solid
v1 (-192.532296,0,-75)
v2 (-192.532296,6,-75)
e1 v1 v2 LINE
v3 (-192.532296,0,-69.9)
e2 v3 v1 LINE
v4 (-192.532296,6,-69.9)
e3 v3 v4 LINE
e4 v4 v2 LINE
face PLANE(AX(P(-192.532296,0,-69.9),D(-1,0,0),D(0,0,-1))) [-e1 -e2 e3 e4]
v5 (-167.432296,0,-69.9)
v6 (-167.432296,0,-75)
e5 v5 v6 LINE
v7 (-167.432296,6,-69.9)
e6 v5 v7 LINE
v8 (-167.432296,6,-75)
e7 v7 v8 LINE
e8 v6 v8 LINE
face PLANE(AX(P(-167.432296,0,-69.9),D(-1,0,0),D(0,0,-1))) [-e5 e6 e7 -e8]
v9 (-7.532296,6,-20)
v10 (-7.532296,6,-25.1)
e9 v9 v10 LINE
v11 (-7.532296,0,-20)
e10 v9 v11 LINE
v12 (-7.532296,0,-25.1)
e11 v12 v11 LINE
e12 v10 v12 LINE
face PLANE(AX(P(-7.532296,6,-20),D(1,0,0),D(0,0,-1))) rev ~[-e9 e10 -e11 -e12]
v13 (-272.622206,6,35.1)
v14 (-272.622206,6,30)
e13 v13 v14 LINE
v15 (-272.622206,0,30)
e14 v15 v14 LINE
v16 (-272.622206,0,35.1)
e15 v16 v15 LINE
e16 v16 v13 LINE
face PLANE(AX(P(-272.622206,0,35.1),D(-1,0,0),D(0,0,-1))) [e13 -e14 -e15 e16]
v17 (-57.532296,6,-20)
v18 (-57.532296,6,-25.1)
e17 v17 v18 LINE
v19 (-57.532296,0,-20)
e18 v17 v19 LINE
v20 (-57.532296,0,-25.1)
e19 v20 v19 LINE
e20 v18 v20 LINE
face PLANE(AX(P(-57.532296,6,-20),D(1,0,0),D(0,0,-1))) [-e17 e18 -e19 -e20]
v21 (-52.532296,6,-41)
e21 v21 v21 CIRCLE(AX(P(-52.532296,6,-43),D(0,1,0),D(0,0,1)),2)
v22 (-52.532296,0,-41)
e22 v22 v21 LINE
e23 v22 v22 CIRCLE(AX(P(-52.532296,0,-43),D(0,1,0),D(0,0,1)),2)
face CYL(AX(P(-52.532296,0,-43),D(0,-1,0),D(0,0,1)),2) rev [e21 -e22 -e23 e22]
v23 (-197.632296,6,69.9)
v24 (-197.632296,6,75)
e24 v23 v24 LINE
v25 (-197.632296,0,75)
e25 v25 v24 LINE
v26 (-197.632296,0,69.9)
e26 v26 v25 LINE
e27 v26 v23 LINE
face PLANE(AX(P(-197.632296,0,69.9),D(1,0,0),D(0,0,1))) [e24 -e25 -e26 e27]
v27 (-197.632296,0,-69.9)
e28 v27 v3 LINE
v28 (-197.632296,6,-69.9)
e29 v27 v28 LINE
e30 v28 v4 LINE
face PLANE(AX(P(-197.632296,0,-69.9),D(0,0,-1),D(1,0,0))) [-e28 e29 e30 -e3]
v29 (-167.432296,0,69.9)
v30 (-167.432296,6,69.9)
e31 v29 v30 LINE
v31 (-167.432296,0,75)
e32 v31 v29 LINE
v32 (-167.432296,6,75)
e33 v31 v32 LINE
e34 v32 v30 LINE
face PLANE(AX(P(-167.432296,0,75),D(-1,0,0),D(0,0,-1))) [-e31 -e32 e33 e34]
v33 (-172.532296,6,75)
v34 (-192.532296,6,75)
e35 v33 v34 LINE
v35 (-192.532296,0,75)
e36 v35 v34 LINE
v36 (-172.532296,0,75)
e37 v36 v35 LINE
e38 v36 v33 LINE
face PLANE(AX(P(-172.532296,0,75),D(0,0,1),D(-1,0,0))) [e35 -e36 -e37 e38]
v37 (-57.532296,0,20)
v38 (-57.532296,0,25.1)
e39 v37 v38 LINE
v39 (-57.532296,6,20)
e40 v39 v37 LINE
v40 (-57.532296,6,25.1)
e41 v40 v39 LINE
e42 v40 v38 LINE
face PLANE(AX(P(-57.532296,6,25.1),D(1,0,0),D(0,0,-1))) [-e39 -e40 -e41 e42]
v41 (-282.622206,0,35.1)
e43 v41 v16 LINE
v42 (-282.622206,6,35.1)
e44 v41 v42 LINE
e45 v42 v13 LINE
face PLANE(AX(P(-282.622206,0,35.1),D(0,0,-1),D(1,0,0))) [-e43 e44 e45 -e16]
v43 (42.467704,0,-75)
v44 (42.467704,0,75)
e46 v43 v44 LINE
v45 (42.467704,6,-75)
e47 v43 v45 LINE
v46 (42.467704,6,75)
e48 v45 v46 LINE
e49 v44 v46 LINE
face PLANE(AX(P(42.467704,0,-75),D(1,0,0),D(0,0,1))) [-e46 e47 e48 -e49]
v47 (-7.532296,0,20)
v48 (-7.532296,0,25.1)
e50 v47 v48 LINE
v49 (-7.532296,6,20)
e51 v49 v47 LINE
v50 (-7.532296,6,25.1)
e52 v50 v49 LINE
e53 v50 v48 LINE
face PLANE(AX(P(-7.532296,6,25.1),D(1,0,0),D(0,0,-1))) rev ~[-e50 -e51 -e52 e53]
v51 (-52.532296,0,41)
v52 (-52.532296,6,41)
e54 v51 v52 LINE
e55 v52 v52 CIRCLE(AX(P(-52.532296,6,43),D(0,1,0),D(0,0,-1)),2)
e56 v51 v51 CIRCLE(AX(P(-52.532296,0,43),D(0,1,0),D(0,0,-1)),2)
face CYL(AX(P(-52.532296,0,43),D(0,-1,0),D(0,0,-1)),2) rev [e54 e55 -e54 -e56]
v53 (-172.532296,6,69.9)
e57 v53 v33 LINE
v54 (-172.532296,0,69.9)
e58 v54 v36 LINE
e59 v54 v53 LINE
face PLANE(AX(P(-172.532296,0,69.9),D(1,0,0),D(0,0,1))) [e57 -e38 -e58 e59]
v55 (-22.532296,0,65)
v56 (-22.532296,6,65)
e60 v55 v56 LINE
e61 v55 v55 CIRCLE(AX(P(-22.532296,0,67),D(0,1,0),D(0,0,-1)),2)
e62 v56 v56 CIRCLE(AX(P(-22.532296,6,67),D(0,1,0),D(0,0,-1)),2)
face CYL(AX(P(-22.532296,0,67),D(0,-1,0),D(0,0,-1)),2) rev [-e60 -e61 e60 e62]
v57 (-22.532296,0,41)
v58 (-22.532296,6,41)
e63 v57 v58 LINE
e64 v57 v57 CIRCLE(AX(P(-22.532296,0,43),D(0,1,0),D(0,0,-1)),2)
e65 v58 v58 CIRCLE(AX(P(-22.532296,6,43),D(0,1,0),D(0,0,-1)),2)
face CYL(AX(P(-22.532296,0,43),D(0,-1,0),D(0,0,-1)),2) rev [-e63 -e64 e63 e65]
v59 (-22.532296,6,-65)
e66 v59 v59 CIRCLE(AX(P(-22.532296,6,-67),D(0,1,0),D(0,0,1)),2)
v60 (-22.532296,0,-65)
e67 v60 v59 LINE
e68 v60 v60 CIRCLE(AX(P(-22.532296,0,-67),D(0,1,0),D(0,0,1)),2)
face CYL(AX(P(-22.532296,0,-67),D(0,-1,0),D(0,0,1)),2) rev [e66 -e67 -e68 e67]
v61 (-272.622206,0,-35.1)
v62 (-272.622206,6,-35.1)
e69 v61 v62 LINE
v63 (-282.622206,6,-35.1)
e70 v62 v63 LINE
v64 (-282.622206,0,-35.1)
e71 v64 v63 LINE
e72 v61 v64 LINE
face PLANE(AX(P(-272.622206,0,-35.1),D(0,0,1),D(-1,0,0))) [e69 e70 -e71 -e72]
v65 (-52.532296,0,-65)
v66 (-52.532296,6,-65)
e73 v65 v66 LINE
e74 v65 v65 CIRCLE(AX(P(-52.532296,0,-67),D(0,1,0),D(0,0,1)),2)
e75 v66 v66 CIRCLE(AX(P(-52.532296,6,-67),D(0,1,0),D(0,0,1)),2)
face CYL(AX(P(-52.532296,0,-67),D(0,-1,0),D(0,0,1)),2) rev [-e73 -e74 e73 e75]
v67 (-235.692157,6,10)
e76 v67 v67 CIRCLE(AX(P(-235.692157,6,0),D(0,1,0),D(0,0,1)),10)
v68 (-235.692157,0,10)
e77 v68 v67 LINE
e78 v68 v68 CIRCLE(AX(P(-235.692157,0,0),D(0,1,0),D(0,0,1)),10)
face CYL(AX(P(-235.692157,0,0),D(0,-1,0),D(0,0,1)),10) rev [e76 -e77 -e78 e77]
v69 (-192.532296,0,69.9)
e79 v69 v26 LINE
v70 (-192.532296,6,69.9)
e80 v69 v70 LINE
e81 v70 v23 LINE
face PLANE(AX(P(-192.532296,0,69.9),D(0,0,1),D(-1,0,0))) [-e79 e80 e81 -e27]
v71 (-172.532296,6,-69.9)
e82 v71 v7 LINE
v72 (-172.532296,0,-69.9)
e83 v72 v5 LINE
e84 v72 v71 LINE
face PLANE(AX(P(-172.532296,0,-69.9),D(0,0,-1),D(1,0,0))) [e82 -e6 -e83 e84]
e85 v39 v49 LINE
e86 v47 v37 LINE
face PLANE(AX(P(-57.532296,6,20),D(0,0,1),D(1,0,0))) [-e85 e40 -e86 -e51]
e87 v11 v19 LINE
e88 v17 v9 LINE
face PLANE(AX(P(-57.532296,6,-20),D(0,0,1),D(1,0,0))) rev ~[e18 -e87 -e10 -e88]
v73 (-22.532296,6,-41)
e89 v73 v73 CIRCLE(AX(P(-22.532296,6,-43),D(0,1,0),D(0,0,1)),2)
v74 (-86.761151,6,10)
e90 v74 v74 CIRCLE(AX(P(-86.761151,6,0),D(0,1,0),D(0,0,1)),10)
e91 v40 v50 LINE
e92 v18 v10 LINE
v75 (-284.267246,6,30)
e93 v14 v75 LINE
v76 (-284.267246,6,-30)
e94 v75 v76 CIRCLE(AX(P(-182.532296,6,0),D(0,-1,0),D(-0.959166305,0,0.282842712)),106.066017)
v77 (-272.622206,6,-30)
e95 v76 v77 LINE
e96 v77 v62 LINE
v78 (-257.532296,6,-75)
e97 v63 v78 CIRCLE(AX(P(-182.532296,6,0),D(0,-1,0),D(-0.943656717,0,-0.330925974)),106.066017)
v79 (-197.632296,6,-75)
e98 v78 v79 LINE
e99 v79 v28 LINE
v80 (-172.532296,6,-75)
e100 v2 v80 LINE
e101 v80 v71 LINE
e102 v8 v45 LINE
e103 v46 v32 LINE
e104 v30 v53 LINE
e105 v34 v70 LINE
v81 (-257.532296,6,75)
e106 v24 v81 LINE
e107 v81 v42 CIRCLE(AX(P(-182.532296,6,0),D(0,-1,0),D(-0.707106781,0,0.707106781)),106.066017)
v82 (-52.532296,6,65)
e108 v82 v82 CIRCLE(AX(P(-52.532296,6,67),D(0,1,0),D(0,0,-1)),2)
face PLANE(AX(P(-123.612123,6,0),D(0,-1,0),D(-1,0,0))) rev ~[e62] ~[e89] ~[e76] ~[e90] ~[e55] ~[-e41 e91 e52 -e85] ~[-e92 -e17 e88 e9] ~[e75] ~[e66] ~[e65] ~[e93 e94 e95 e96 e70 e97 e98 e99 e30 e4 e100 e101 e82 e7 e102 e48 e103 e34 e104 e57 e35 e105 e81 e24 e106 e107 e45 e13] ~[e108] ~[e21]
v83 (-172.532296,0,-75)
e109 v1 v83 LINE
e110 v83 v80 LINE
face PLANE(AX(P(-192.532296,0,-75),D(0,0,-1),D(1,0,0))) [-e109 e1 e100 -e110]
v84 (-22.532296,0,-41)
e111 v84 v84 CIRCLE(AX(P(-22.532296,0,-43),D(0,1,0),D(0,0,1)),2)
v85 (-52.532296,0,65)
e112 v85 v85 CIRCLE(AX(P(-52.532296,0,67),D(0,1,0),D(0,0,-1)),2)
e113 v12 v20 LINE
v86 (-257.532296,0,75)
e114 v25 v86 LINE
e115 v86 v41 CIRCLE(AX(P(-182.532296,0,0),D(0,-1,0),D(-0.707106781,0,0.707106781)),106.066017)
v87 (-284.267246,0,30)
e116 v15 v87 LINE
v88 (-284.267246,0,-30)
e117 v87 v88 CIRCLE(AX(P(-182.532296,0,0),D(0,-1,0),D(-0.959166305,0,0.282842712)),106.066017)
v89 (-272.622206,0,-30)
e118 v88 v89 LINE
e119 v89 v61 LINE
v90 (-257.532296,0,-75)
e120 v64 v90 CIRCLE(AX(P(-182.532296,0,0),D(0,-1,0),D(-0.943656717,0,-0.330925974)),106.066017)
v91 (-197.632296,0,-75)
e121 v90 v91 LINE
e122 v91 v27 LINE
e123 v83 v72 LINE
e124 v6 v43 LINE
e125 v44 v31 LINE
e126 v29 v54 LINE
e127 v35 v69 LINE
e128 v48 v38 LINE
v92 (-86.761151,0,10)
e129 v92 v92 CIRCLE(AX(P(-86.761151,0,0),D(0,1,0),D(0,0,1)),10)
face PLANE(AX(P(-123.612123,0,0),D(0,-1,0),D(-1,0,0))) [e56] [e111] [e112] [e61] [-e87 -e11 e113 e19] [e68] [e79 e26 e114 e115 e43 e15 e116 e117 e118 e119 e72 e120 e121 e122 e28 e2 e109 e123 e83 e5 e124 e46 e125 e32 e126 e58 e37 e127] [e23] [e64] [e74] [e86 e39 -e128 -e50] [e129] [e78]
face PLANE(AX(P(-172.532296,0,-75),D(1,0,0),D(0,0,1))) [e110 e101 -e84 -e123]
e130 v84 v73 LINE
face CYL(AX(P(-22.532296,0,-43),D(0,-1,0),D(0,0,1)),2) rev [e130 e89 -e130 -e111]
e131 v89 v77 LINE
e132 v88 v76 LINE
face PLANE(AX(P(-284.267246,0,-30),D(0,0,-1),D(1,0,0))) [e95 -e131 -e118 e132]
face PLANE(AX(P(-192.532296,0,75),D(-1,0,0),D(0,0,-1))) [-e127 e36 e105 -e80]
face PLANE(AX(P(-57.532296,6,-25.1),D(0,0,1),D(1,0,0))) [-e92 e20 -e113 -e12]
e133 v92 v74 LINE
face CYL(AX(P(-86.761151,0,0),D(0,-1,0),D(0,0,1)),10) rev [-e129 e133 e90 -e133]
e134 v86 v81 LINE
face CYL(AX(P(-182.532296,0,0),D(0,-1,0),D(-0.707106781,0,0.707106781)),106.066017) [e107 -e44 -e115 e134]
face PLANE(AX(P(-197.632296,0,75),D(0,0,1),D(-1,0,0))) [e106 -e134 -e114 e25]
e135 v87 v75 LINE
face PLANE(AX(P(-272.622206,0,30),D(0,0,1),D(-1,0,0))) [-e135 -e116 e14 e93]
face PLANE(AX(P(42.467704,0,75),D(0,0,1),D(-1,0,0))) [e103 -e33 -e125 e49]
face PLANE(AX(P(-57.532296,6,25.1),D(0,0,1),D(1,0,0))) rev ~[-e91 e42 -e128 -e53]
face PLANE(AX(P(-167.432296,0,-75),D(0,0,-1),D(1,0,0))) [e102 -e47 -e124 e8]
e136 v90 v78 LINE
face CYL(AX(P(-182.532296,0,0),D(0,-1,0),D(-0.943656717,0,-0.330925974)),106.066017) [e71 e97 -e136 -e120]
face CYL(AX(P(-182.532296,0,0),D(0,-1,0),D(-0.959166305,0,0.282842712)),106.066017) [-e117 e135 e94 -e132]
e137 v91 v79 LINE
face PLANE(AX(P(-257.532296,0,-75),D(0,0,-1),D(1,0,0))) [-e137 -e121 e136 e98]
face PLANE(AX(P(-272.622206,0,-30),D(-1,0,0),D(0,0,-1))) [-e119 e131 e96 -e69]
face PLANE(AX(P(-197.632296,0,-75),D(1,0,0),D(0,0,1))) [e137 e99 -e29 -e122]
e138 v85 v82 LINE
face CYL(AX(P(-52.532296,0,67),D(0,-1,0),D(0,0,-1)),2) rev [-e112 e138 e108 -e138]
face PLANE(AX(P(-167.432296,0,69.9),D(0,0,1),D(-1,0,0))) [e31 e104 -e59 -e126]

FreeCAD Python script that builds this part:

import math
import FreeCAD as App
import Part
import Sketcher


def add_polygon(sketch, points):
    """Adds a closed chain of lines whose ends are joined by coincident constraints."""
    first, n = sketch.GeometryCount, len(points)
    for a, b in zip(points, points[1:] + points[:1]):
        sketch.addGeometry(Part.LineSegment(App.Vector(*a, 0), App.Vector(*b, 0)), False)
    for i in range(n):
        sketch.addConstraint(Sketcher.Constraint("Coincident", first + i, 2, first + (i + 1) % n, 1))

doc = App.newDocument("Part")
body = doc.addObject("PartDesign::Body", "Body")

# Sketch on XZ plane
sketch1 = doc.addObject("Sketcher::SketchObject", "Sketch")
body.addObject(sketch1)
sketch1.AttachmentSupport = (doc.XZ_Plane, [""])
sketch1.MapMode = "FlatFace"
sketch1.addGeometry(Part.LineSegment(App.Vector(-167.4, 75, 0), App.Vector(42.5, 75, 0)), False)
sketch1.addGeometry(Part.LineSegment(App.Vector(42.5, 75, 0), App.Vector(42.5, -75, 0)), False)
sketch1.addGeometry(Part.LineSegment(App.Vector(42.5, -75, 0), App.Vector(-167.4, -75, 0)), False)
sketch1.addGeometry(Part.LineSegment(App.Vector(-167.4, -75, 0), App.Vector(-167.4, -69.9, 0)), False)
sketch1.addGeometry(Part.LineSegment(App.Vector(-167.4, -69.9, 0), App.Vector(-172.5, -69.9, 0)), False)
sketch1.addGeometry(Part.LineSegment(App.Vector(-172.5, -69.9, 0), App.Vector(-172.5, -75, 0)), False)
sketch1.addGeometry(Part.LineSegment(App.Vector(-172.5, -75, 0), App.Vector(-192.5, -75, 0)), False)
sketch1.addGeometry(Part.LineSegment(App.Vector(-192.5, -75, 0), App.Vector(-192.5, -69.9, 0)), False)
sketch1.addGeometry(Part.LineSegment(App.Vector(-192.5, -69.9, 0), App.Vector(-197.6, -69.9, 0)), False)
sketch1.addGeometry(Part.LineSegment(App.Vector(-197.6, -69.9, 0), App.Vector(-197.6, -75, 0)), False)
sketch1.addGeometry(Part.LineSegment(App.Vector(-197.6, -75, 0), App.Vector(-257.5, -75, 0)), False)
sketch1.addGeometry(Part.ArcOfCircle(Part.Circle(App.Vector(-182.5, 0, 0), App.Vector(0, 0, 1), 106.1), math.radians(-161), math.radians(-135)), False)
sketch1.addGeometry(Part.LineSegment(App.Vector(-282.6, -35.1, 0), App.Vector(-272.6, -35.1, 0)), False)
sketch1.addGeometry(Part.LineSegment(App.Vector(-272.6, -35.1, 0), App.Vector(-272.6, -30, 0)), False)
sketch1.addGeometry(Part.LineSegment(App.Vector(-272.6, -30, 0), App.Vector(-284.3, -30, 0)), False)
sketch1.addGeometry(Part.ArcOfCircle(Part.Circle(App.Vector(-182.5, 0, 0), App.Vector(0, 0, 1), 106.1), math.radians(164), math.radians(196)), False)
sketch1.addGeometry(Part.LineSegment(App.Vector(-284.3, 30, 0), App.Vector(-272.6, 30, 0)), False)
sketch1.addGeometry(Part.LineSegment(App.Vector(-272.6, 30, 0), App.Vector(-272.6, 35.1, 0)), False)
sketch1.addGeometry(Part.LineSegment(App.Vector(-272.6, 35.1, 0), App.Vector(-282.6, 35.1, 0)), False)
sketch1.addGeometry(Part.ArcOfCircle(Part.Circle(App.Vector(-182.5, 0, 0), App.Vector(0, 0, 1), 106.1), math.radians(135), math.radians(161)), False)
sketch1.addGeometry(Part.LineSegment(App.Vector(-257.5, 75, 0), App.Vector(-197.6, 75, 0)), False)
sketch1.addGeometry(Part.LineSegment(App.Vector(-197.6, 75, 0), App.Vector(-197.6, 69.9, 0)), False)
sketch1.addGeometry(Part.LineSegment(App.Vector(-197.6, 69.9, 0), App.Vector(-192.5, 69.9, 0)), False)
sketch1.addGeometry(Part.LineSegment(App.Vector(-192.5, 69.9, 0), App.Vector(-192.5, 75, 0)), False)
sketch1.addGeometry(Part.LineSegment(App.Vector(-192.5, 75, 0), App.Vector(-172.5, 75, 0)), False)
sketch1.addGeometry(Part.LineSegment(App.Vector(-172.5, 75, 0), App.Vector(-172.5, 69.9, 0)), False)
sketch1.addGeometry(Part.LineSegment(App.Vector(-172.5, 69.9, 0), App.Vector(-167.4, 69.9, 0)), False)
sketch1.addGeometry(Part.LineSegment(App.Vector(-167.4, 69.9, 0), App.Vector(-167.4, 75, 0)), False)
sketch1.addGeometry(Part.Circle(App.Vector(-22.5, 67, 0), App.Vector(0, 0, 1), 2), False)
sketch1.addGeometry(Part.Circle(App.Vector(-52.5, 67, 0), App.Vector(0, 0, 1), 2), False)
sketch1.addGeometry(Part.Circle(App.Vector(-22.5, 43, 0), App.Vector(0, 0, 1), 2), False)
sketch1.addGeometry(Part.Circle(App.Vector(-52.5, 43, 0), App.Vector(0, 0, 1), 2), False)
sketch1.addGeometry(Part.Circle(App.Vector(-86.8, 0, 0), App.Vector(0, 0, 1), 10), False)
sketch1.addGeometry(Part.Circle(App.Vector(-22.5, -43, 0), App.Vector(0, 0, 1), 2), False)
sketch1.addGeometry(Part.Circle(App.Vector(-52.5, -43, 0), App.Vector(0, 0, 1), 2), False)
sketch1.addGeometry(Part.Circle(App.Vector(-22.5, -67, 0), App.Vector(0, 0, 1), 2), False)
sketch1.addGeometry(Part.Circle(App.Vector(-52.5, -67, 0), App.Vector(0, 0, 1), 2), False)
sketch1.addGeometry(Part.Circle(App.Vector(-235.7, 0, 0), App.Vector(0, 0, 1), 10), False)
sketch1.addConstraint(Sketcher.Constraint("Coincident", 0, 2, 1, 1))
sketch1.addConstraint(Sketcher.Constraint("Coincident", 1, 2, 2, 1))
sketch1.addConstraint(Sketcher.Constraint("Coincident", 2, 2, 3, 1))
sketch1.addConstraint(Sketcher.Constraint("Coincident", 3, 2, 4, 1))
sketch1.addConstraint(Sketcher.Constraint("Coincident", 4, 2, 5, 1))
sketch1.addConstraint(Sketcher.Constraint("Coincident", 5, 2, 6, 1))
sketch1.addConstraint(Sketcher.Constraint("Coincident", 6, 2, 7, 1))
sketch1.addConstraint(Sketcher.Constraint("Coincident", 7, 2, 8, 1))
sketch1.addConstraint(Sketcher.Constraint("Coincident", 8, 2, 9, 1))
sketch1.addConstraint(Sketcher.Constraint("Coincident", 9, 2, 10, 1))
sketch1.addConstraint(Sketcher.Constraint("Coincident", 10, 2, 11, 2))
sketch1.addConstraint(Sketcher.Constraint("Coincident", 11, 1, 12, 1))
sketch1.addConstraint(Sketcher.Constraint("Coincident", 12, 2, 13, 1))
sketch1.addConstraint(Sketcher.Constraint("Coincident", 13, 2, 14, 1))
sketch1.addConstraint(Sketcher.Constraint("Coincident", 14, 2, 15, 2))
sketch1.addConstraint(Sketcher.Constraint("Coincident", 15, 1, 16, 1))
sketch1.addConstraint(Sketcher.Constraint("Coincident", 16, 2, 17, 1))
sketch1.addConstraint(Sketcher.Constraint("Coincident", 17, 2, 18, 1))
sketch1.addConstraint(Sketcher.Constraint("Coincident", 18, 2, 19, 2))
sketch1.addConstraint(Sketcher.Constraint("Coincident", 19, 1, 20, 1))
sketch1.addConstraint(Sketcher.Constraint("Coincident", 20, 2, 21, 1))
sketch1.addConstraint(Sketcher.Constraint("Coincident", 21, 2, 22, 1))
sketch1.addConstraint(Sketcher.Constraint("Coincident", 22, 2, 23, 1))
sketch1.addConstraint(Sketcher.Constraint("Coincident", 23, 2, 24, 1))
sketch1.addConstraint(Sketcher.Constraint("Coincident", 24, 2, 25, 1))
sketch1.addConstraint(Sketcher.Constraint("Coincident", 25, 2, 26, 1))
sketch1.addConstraint(Sketcher.Constraint("Coincident", 26, 2, 27, 1))
sketch1.addConstraint(Sketcher.Constraint("Coincident", 27, 2, 0, 1))
sketch1.addConstraint(Sketcher.Constraint("Horizontal", 0))
sketch1.addConstraint(Sketcher.Constraint("Vertical", 1))
sketch1.addConstraint(Sketcher.Constraint("Horizontal", 2))
sketch1.addConstraint(Sketcher.Constraint("Vertical", 3))
sketch1.addConstraint(Sketcher.Constraint("Horizontal", 4))
sketch1.addConstraint(Sketcher.Constraint("Vertical", 5))
sketch1.addConstraint(Sketcher.Constraint("Horizontal", 6))
sketch1.addConstraint(Sketcher.Constraint("Vertical", 7))
sketch1.addConstraint(Sketcher.Constraint("Horizontal", 8))
sketch1.addConstraint(Sketcher.Constraint("Vertical", 9))
sketch1.addConstraint(Sketcher.Constraint("Horizontal", 10))
sketch1.addConstraint(Sketcher.Constraint("Horizontal", 12))
sketch1.addConstraint(Sketcher.Constraint("Vertical", 13))
sketch1.addConstraint(Sketcher.Constraint("Horizontal", 14))
sketch1.addConstraint(Sketcher.Constraint("Horizontal", 16))
sketch1.addConstraint(Sketcher.Constraint("Vertical", 17))
sketch1.addConstraint(Sketcher.Constraint("Horizontal", 18))
sketch1.addConstraint(Sketcher.Constraint("Horizontal", 20))
sketch1.addConstraint(Sketcher.Constraint("Vertical", 21))
sketch1.addConstraint(Sketcher.Constraint("Horizontal", 22))
sketch1.addConstraint(Sketcher.Constraint("Vertical", 23))
sketch1.addConstraint(Sketcher.Constraint("Horizontal", 24))
sketch1.addConstraint(Sketcher.Constraint("Vertical", 25))
sketch1.addConstraint(Sketcher.Constraint("Horizontal", 26))
sketch1.addConstraint(Sketcher.Constraint("Vertical", 27))
sketch1.addConstraint(Sketcher.Constraint("Coincident", 15, 3, 11, 3))
sketch1.addConstraint(Sketcher.Constraint("Coincident", 19, 3, 11, 3))
sketch1.addConstraint(Sketcher.Constraint("Equal", 11, 15))
sketch1.addConstraint(Sketcher.Constraint("Equal", 15, 19))
sketch1.addConstraint(Sketcher.Constraint("Equal", 28, 29))
sketch1.addConstraint(Sketcher.Constraint("Equal", 29, 30))
sketch1.addConstraint(Sketcher.Constraint("Equal", 30, 31))
sketch1.addConstraint(Sketcher.Constraint("Equal", 31, 33))
sketch1.addConstraint(Sketcher.Constraint("Equal", 33, 34))
sketch1.addConstraint(Sketcher.Constraint("Equal", 34, 35))
sketch1.addConstraint(Sketcher.Constraint("Equal", 35, 36))
sketch1.addConstraint(Sketcher.Constraint("Equal", 32, 37))
sketch1.addConstraint(Sketcher.Constraint("Symmetric", 30, 3, 33, 3, -1))
sketch1.addConstraint(Sketcher.Constraint("Symmetric", 31, 3, 34, 3, -1))
sketch1.addConstraint(Sketcher.Constraint("Symmetric", 28, 3, 35, 3, -1))
sketch1.addConstraint(Sketcher.Constraint("Symmetric", 29, 3, 36, 3, -1))
sketch1.addConstraint(Sketcher.Constraint("Symmetric", 14, 2, 15, 1, -1))
sketch1.addConstraint(Sketcher.Constraint("Symmetric", 12, 2, 17, 2, -1))
sketch1.addConstraint(Sketcher.Constraint("Symmetric", 9, 2, 20, 2, -1))
sketch1.addConstraint(Sketcher.Constraint("Symmetric", 7, 2, 22, 2, -1))
sketch1.addConstraint(Sketcher.Constraint("Symmetric", 5, 2, 24, 2, -1))
sketch1.addConstraint(Sketcher.Constraint("Symmetric", 3, 2, 26, 2, -1))
sketch1.addConstraint(Sketcher.Constraint("PointOnObject", 32, 3, -1))
sketch1.addConstraint(Sketcher.Constraint("PointOnObject", 37, 3, -1))
sketch1.addConstraint(Sketcher.Constraint("Horizontal", 28, 3, 29, 3))
sketch1.addConstraint(Sketcher.Constraint("Horizontal", 30, 3, 31, 3))
sketch1.addConstraint(Sketcher.Constraint("Horizontal", 2, 2, 5, 2))
sketch1.addConstraint(Sketcher.Constraint("Horizontal", 4, 2, 7, 2))
sketch1.addConstraint(Sketcher.Constraint("Horizontal", 6, 2, 9, 2))
sketch1.addConstraint(Sketcher.Constraint("Horizontal", 0, 2, 19, 1))
sketch1.addConstraint(Sketcher.Constraint("Vertical", 28, 3, 30, 3))
sketch1.addConstraint(Sketcher.Constraint("Vertical", 29, 3, 31, 3))
sketch1.addConstraint(Sketcher.Constraint("Equal", 4, 8))
sketch1.addConstraint(Sketcher.Constraint("Equal", 26, 3))
sketch1.addConstraint(Sketcher.Constraint("Equal", 9, 13))
sketch1.addConstraint(Sketcher.Constraint("Diameter", 28, 4.0))
sketch1.addConstraint(Sketcher.Constraint("Diameter", 32, 20.0))
sketch1.addConstraint(Sketcher.Constraint("DistanceX", 6, 2, 6, 1, 20.0))
sketch1.addConstraint(Sketcher.Constraint("DistanceX", 12, 1, 12, 2, 10.0))
sketch1.addConstraint(Sketcher.Constraint("DistanceY", 1, 2, 1, 1, 150.0))
sketch1.addConstraint(Sketcher.Constraint("DistanceX", 0, 1, 0, 2, 209.9))
sketch1.addConstraint(Sketcher.Constraint("DistanceX", 4, 2, 4, 1, 5.1))
sketch1.addConstraint(Sketcher.Constraint("DistanceX", 10, 2, 10, 1, 59.9))
sketch1.addConstraint(Sketcher.Constraint("DistanceY", -1, 1, 28, 3, 67.0))
sketch1.addConstraint(Sketcher.Constraint("DistanceY", -1, 1, 30, 3, 43.0))
sketch1.addConstraint(Sketcher.Constraint("DistanceY", 13, 2, -1, 1, 30.0))
sketch1.addConstraint(Sketcher.Constraint("DistanceX", 15, 3, 28, 3, 160.0))
sketch1.addConstraint(Sketcher.Constraint("DistanceX", 29, 3, 28, 3, 30.0))
sketch1.addConstraint(Sketcher.Constraint("DistanceX", 28, 3, 0, 2, 65.0))
sketch1.addConstraint(Sketcher.Constraint("DistanceX", 32, 3, -1, 1, 86.761151))
sketch1.addConstraint(Sketcher.Constraint("DistanceX", 37, 3, 11, 3, 53.15986))
sketch1.addConstraint(Sketcher.Constraint("DistanceX", 11, 3, -1, 1, 182.532296))
pad1 = doc.addObject("PartDesign::Pad", "Pad")
body.addObject(pad1)
pad1.Profile = sketch1
pad1.Length = 6
pad1.Reversed = True

# Sketch on XZ plane
sketch2 = doc.addObject("Sketcher::SketchObject", "Sketch001")
body.addObject(sketch2)
sketch2.AttachmentSupport = (doc.XZ_Plane, [""])
sketch2.MapMode = "FlatFace"
sketch2.AttachmentOffset = App.Placement(App.Vector(0, 0, -6), App.Rotation())
add_polygon(sketch2, [(-58, -25), (-58, -20), (-8, -20), (-8, -25)])  # lines 0-3
add_polygon(sketch2, [(-58, 20), (-58, 25), (-8, 25), (-8, 20)])  # lines 4-7
sketch2.addConstraint(Sketcher.Constraint("Vertical", 0))
sketch2.addConstraint(Sketcher.Constraint("Horizontal", 1))
sketch2.addConstraint(Sketcher.Constraint("Vertical", 2))
sketch2.addConstraint(Sketcher.Constraint("Horizontal", 3))
sketch2.addConstraint(Sketcher.Constraint("Vertical", 4))
sketch2.addConstraint(Sketcher.Constraint("Horizontal", 5))
sketch2.addConstraint(Sketcher.Constraint("Vertical", 6))
sketch2.addConstraint(Sketcher.Constraint("Horizontal", 7))
sketch2.addConstraint(Sketcher.Constraint("Symmetric", 3, 2, 4, 2, -1))
sketch2.addConstraint(Sketcher.Constraint("Symmetric", 1, 2, 6, 2, -1))
sketch2.addConstraint(Sketcher.Constraint("DistanceX", 1, 1, 1, 2, 50.0))
sketch2.addConstraint(Sketcher.Constraint("DistanceY", 0, 1, 0, 2, 5.1))
sketch2.addConstraint(Sketcher.Constraint("DistanceY", 0, 2, -1, 1, 20.0))
sketch2.addConstraint(Sketcher.Constraint("DistanceX", 0, 2, -1, 1, 57.532296))
pocket1 = doc.addObject("PartDesign::Pocket", "Pocket")
body.addObject(pocket1)
pocket1.Profile = sketch2
pocket1.Type = "ThroughAll"
pocket1.Reversed = True

doc.recompute()
